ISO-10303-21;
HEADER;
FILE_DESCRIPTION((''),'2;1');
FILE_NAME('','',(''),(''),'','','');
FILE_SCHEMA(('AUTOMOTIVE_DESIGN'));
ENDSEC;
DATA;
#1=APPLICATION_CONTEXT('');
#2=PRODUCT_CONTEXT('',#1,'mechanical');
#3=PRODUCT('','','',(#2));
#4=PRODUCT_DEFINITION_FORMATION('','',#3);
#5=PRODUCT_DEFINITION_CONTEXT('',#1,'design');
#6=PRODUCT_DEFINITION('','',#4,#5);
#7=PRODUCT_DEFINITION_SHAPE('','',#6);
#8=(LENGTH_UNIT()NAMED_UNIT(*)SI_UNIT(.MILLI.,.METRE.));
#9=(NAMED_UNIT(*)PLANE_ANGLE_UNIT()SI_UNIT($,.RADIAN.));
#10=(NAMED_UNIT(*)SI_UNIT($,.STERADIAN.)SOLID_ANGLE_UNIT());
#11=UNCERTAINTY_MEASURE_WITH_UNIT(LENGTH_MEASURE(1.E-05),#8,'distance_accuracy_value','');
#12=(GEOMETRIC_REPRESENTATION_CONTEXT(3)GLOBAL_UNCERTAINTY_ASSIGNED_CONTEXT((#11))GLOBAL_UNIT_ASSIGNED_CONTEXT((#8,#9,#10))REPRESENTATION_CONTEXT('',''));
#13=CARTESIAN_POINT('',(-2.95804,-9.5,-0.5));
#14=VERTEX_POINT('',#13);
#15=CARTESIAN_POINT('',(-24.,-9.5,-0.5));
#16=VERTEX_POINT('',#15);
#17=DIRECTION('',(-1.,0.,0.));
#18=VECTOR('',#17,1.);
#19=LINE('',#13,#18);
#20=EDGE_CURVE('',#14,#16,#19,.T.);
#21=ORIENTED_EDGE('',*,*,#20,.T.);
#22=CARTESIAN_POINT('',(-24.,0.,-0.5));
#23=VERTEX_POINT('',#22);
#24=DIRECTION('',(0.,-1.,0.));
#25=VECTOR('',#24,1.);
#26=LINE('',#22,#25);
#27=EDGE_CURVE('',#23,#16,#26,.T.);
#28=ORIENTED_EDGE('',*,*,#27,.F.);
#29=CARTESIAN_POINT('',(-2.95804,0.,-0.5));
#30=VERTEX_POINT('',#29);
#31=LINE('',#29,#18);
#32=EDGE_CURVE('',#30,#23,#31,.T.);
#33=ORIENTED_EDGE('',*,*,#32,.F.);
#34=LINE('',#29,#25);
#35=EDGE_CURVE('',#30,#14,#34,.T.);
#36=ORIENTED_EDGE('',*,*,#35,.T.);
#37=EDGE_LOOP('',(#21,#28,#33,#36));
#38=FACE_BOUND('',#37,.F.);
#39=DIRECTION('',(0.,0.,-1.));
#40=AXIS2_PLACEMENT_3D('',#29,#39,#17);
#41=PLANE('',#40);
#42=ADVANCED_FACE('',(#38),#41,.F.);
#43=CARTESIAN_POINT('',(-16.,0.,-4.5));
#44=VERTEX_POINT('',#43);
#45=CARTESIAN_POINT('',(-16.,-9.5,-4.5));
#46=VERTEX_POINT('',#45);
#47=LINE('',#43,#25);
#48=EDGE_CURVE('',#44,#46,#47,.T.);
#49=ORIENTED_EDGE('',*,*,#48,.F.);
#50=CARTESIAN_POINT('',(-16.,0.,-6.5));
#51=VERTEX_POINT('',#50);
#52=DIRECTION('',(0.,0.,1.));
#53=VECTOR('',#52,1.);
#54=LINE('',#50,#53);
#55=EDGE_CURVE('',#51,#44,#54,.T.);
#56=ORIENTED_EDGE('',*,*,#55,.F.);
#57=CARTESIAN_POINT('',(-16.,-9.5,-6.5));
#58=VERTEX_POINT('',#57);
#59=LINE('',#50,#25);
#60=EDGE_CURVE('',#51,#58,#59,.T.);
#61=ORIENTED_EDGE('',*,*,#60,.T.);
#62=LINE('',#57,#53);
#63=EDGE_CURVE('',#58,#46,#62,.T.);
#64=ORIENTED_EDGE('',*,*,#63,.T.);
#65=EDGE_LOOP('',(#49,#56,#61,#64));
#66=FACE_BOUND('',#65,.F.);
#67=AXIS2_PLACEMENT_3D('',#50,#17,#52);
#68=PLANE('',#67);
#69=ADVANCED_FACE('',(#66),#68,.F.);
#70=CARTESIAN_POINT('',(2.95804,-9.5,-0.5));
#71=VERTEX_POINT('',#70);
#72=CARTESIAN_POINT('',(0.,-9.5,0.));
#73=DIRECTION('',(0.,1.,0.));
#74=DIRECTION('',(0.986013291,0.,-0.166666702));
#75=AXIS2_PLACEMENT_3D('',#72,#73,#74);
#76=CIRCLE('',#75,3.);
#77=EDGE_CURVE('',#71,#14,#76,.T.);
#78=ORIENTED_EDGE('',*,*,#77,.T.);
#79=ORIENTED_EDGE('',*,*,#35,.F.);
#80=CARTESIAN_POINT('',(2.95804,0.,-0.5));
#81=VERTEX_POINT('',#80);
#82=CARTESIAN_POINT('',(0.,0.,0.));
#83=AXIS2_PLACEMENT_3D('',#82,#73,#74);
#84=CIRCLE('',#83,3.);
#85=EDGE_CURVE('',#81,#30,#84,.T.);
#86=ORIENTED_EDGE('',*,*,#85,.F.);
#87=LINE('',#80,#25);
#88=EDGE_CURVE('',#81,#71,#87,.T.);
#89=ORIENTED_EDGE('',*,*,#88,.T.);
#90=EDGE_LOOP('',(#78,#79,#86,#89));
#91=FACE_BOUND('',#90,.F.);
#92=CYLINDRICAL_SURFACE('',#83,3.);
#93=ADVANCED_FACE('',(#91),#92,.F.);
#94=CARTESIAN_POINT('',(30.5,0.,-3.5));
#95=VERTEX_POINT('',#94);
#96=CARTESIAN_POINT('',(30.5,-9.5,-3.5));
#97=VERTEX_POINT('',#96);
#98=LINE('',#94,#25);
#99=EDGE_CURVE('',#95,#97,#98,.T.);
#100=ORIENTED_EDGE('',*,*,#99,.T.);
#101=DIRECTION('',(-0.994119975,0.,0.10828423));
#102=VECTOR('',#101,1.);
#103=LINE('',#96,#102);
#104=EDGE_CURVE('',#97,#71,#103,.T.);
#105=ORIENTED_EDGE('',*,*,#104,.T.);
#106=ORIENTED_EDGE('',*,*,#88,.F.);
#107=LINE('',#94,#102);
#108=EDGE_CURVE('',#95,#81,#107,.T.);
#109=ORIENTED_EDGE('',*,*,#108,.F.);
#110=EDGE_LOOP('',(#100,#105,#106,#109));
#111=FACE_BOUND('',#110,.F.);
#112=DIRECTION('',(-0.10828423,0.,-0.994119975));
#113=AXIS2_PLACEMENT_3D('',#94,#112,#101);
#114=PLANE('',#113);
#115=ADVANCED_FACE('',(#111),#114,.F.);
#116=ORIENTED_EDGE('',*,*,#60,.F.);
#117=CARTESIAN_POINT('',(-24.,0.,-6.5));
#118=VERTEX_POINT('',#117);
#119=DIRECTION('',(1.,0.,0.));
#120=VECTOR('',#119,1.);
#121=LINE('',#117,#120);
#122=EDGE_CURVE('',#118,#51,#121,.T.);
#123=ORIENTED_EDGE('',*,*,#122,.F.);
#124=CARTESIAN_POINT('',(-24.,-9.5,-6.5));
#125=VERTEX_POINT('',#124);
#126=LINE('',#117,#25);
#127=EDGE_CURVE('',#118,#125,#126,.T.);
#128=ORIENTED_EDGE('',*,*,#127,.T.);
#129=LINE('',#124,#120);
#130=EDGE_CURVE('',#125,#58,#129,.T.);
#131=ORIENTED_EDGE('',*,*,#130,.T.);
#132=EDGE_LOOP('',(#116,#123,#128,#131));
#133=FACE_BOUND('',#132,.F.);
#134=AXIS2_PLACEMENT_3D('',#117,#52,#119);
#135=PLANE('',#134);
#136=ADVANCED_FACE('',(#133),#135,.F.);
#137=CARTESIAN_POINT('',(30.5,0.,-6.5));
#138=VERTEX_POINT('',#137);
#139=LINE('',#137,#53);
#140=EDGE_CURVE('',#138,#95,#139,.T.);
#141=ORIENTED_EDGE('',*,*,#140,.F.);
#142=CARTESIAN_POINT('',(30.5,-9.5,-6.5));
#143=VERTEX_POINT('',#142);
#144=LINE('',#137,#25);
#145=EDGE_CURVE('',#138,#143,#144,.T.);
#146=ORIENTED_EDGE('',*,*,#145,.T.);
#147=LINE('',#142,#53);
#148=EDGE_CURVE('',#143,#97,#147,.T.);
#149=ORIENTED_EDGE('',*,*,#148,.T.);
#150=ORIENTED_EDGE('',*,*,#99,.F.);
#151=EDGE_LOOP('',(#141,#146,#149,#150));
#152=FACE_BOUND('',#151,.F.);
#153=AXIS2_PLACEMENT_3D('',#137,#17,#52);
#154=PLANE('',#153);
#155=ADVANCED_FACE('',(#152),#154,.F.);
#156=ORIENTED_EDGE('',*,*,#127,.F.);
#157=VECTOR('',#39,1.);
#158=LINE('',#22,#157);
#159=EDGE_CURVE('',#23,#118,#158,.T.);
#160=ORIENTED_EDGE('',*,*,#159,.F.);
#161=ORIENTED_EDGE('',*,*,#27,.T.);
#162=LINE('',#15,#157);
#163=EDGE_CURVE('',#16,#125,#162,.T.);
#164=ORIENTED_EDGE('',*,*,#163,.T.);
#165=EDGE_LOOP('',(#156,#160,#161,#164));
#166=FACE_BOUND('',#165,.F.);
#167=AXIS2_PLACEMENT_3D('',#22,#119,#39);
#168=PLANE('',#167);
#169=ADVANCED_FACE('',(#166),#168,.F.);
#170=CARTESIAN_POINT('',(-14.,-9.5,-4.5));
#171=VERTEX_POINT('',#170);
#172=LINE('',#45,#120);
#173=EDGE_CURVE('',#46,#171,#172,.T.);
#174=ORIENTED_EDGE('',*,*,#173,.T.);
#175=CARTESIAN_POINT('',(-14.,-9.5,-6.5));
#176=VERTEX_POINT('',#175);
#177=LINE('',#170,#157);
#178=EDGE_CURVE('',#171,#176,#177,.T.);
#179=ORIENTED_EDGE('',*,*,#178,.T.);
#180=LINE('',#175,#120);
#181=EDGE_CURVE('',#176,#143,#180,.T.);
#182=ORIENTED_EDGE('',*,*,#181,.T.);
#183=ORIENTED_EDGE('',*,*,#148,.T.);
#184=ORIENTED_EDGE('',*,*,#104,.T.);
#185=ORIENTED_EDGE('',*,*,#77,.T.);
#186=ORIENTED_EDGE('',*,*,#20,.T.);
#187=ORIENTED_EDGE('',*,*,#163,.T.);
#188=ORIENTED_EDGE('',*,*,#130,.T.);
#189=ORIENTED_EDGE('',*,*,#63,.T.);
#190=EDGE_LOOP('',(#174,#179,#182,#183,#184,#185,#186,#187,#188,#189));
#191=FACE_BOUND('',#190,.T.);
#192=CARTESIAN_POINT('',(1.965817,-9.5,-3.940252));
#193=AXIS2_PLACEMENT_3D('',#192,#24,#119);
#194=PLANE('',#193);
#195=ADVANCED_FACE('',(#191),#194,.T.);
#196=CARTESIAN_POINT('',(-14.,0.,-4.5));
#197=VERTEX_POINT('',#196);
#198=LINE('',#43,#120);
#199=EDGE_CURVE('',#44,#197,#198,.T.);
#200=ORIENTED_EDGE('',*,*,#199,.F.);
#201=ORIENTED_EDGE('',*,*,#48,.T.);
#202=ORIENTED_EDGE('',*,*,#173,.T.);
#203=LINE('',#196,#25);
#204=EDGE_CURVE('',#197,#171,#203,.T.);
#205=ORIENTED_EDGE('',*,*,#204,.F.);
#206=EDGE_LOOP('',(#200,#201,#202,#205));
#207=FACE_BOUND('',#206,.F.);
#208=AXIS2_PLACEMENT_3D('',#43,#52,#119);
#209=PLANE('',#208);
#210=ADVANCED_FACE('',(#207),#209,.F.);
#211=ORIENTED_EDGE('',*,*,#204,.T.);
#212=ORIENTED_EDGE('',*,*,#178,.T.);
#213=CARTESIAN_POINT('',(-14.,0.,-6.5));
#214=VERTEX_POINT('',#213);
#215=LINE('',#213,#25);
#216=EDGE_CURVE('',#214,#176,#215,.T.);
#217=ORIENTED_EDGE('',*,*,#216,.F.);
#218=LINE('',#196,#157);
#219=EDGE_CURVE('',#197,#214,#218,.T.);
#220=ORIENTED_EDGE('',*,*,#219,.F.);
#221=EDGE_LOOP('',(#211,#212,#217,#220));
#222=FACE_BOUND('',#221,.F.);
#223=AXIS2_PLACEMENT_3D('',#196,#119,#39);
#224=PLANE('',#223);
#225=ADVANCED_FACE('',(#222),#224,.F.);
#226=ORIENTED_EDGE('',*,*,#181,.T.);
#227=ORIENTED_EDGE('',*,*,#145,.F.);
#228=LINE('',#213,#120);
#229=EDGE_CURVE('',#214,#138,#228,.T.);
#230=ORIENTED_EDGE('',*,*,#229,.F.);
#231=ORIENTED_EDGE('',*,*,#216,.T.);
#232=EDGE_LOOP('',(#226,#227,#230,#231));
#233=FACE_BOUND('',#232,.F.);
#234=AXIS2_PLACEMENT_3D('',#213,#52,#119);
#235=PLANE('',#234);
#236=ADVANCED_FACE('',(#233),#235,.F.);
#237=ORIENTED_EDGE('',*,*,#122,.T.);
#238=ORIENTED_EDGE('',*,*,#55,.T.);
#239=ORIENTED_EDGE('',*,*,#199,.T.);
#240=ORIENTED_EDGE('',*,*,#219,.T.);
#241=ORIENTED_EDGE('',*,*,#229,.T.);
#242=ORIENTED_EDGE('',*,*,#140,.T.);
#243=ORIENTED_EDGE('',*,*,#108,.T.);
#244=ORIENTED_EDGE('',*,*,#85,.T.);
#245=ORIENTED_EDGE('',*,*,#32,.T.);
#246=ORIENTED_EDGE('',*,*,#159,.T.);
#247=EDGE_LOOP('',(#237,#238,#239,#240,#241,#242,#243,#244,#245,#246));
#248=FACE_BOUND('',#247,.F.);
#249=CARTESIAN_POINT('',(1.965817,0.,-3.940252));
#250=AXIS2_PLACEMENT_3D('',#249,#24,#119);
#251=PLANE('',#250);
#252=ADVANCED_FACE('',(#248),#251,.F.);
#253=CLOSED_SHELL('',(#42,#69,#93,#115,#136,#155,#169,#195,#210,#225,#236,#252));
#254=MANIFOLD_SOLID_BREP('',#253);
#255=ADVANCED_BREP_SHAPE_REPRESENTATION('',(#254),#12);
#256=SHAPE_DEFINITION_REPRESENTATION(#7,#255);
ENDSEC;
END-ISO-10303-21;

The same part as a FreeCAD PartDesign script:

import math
import FreeCAD as App
import Part
import Sketcher
Q = App.Units.Quantity

doc = App.newDocument("Part")
body = doc.addObject("PartDesign::Body", "Body")

# Sketch on XZ plane
sketch1 = body.newObject("Sketcher::SketchObject", "Sketch")
sketch1.AttachmentSupport = (doc.getObject("XZ_Plane"), [""])
sketch1.MapMode = "FlatFace"
sketch1.addGeometry([
    Part.LineSegment(App.Vector(-14, -6.5, 0), App.Vector(30.5, -6.5, 0)),  # 0
    Part.LineSegment(App.Vector(30.5, -6.5, 0), App.Vector(30.5, -3.5, 0)),  # 1
    Part.LineSegment(App.Vector(30.5, -3.5, 0), App.Vector(3, -0.5, 0)),  # 2
    Part.ArcOfCircle(Part.Circle(App.Vector(0, 0, 0), App.Vector(0, 0, 1), 3), math.radians(-170), math.radians(-10)),  # 3
    Part.LineSegment(App.Vector(-3, -0.5, 0), App.Vector(-24, -0.5, 0)),  # 4
    Part.LineSegment(App.Vector(-24, -0.5, 0), App.Vector(-24, -6.5, 0)),  # 5
    Part.LineSegment(App.Vector(-24, -6.5, 0), App.Vector(-16, -6.5, 0)),  # 6
    Part.LineSegment(App.Vector(-16, -6.5, 0), App.Vector(-16, -4.5, 0)),  # 7
    Part.LineSegment(App.Vector(-16, -4.5, 0), App.Vector(-14, -4.5, 0)),  # 8
    Part.LineSegment(App.Vector(-14, -4.5, 0), App.Vector(-14, -6.5, 0)),  # 9
], False)
sketch1.addConstraint([
    Sketcher.Constraint("Coincident", 0, 2, 1, 1),
    Sketcher.Constraint("Coincident", 1, 2, 2, 1),
    Sketcher.Constraint("Coincident", 2, 2, 3, 2),
    Sketcher.Constraint("Coincident", 3, 1, 4, 1),
    Sketcher.Constraint("Coincident", 4, 2, 5, 1),
    Sketcher.Constraint("Coincident", 5, 2, 6, 1),
    Sketcher.Constraint("Coincident", 6, 2, 7, 1),
    Sketcher.Constraint("Coincident", 7, 2, 8, 1),
    Sketcher.Constraint("Coincident", 8, 2, 9, 1),
    Sketcher.Constraint("Coincident", 9, 2, 0, 1),
    Sketcher.Constraint("Horizontal", 0),
    Sketcher.Constraint("Vertical", 1),
    Sketcher.Constraint("Horizontal", 4),
    Sketcher.Constraint("Vertical", 5),
    Sketcher.Constraint("Horizontal", 6),
    Sketcher.Constraint("Vertical", 7),
    Sketcher.Constraint("Horizontal", 8),
    Sketcher.Constraint("Vertical", 9),
    Sketcher.Constraint("Coincident", 3, 3, -1, 1),
    Sketcher.Constraint("Horizontal", 2, 2, 3, 1),
    Sketcher.Constraint("Horizontal", 0, 2, 5, 2),
    Sketcher.Constraint("Equal", 8, 7),
    Sketcher.Constraint("Radius", 3, Q("3 mm")),
    Sketcher.Constraint("DistanceX", 6, 1, 6, 2, Q("8 mm")),
    Sketcher.Constraint("DistanceX", 8, 1, 8, 2, Q("2 mm")),
    Sketcher.Constraint("DistanceY", 1, 1, 1, 2, Q("3 mm")),
    Sketcher.Constraint("DistanceY", 5, 2, 5, 1, Q("6 mm")),
    Sketcher.Constraint("DistanceX", 0, 1, 0, 2, Q("44.5 mm")),
    Sketcher.Constraint("DistanceX", 4, 2, -1, 1, Q("24 mm")),
    Sketcher.Constraint("DistanceY", 0, 2, -1, 1, Q("6.5 mm")),
])
pad1 = body.newObject("PartDesign::Pad", "Pad")
pad1.Profile = sketch1
pad1.Length = 9.5

doc.recompute()
